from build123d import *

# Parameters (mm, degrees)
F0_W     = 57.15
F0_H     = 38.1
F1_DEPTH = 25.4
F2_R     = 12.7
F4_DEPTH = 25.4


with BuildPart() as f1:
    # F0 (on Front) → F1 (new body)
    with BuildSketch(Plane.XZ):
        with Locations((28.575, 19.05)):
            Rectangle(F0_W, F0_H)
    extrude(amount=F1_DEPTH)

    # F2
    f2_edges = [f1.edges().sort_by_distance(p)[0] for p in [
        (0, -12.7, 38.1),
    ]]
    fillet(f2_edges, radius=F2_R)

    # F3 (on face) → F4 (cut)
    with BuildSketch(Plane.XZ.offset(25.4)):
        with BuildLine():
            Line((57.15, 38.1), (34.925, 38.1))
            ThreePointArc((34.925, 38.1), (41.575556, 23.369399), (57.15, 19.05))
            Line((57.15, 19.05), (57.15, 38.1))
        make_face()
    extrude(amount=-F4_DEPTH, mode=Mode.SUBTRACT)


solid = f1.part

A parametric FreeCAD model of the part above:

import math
import FreeCAD as App
import Part
import Sketcher
Q = App.Units.Quantity


def edges_at(feature, points):
    """Names of the edges that pass closest to the given points."""
    edges = feature.Shape.Edges
    near = lambda p: min(range(len(edges)), key=lambda i: edges[i].distToShape(Part.Vertex(*p))[0])
    return sorted({f"Edge{near(p) + 1}" for p in points})

doc = App.newDocument("Part")
params = doc.addObject("Spreadsheet::Sheet", "Params")
for row, (alias, value) in enumerate([
    ("sketch1_height", "1.5 in"),
    ("sketch1_width", "2.25 in"),
    ("pad1_length", "1 in"),
    ("fillet_radius", "0.5 in"),
    ("sketch2_radius", "0.75 in"),
    ("sketch2_height", "0.75 in"),
    ("sketch2_width", "0.875 in"),
    ("pocket1_length", "1 in"),
], start=1):
    params.set(f"A{row}", alias)
    params.set(f"B{row}", "=" + value)
    params.setAlias(f"B{row}", alias)

body = doc.addObject("PartDesign::Body", "Body")

# Sketch on XZ plane
sketch1 = body.newObject("Sketcher::SketchObject", "Sketch")
sketch1.AttachmentSupport = (doc.getObject("XZ_Plane"), [""])
sketch1.MapMode = "FlatFace"
sketch1.addGeometry([
    Part.LineSegment(App.Vector(0, 38.1, 0), App.Vector(0, 0, 0)),
    Part.LineSegment(App.Vector(0, 0, 0), App.Vector(57.15, 0, 0)),
    Part.LineSegment(App.Vector(57.15, 0, 0), App.Vector(57.15, 38.1, 0)),
    Part.LineSegment(App.Vector(57.15, 38.1, 0), App.Vector(0, 38.1, 0)),
], False)
sketch1.addConstraint([
    Sketcher.Constraint("Coincident", 0, 2, 1, 1),
    Sketcher.Constraint("Coincident", 1, 2, 2, 1),
    Sketcher.Constraint("Coincident", 2, 2, 3, 1),
    Sketcher.Constraint("Coincident", 3, 2, 0, 1),
    Sketcher.Constraint("Vertical", 0),
    Sketcher.Constraint("Horizontal", 1),
    Sketcher.Constraint("Vertical", 2),
    Sketcher.Constraint("Horizontal", 3),
    Sketcher.Constraint("Coincident", 0, 2, -1, 1),
    Sketcher.Constraint("DistanceY", 0, 2, 0, 1, Q("1.5 in")),
    Sketcher.Constraint("DistanceX", 1, 1, 1, 2, Q("2.25 in")),
])
sketch1.setExpression("Constraints[9]", "Params.sketch1_height")
sketch1.setExpression("Constraints[10]", "Params.sketch1_width")
pad1 = body.newObject("PartDesign::Pad", "Pad")
pad1.Profile = sketch1
pad1.setExpression("Length", "Params.pad1_length")
doc.recompute()

fillet = body.newObject("PartDesign::Fillet", "Fillet")
fillet.Base = (pad1, edges_at(pad1, [(0, -12.7, 38.1)]))
fillet.setExpression("Radius", "Params.fillet_radius")

# Sketch on XZ plane
sketch2 = body.newObject("Sketcher::SketchObject", "Sketch001")
sketch2.AttachmentSupport = (doc.getObject("XZ_Plane"), [""])
sketch2.MapMode = "FlatFace"
sketch2.AttachmentOffset = App.Placement(App.Vector(0, 0, 1 * 25.4), App.Rotation())
sketch2.addGeometry([
    Part.LineSegment(App.Vector(57.15, 38.1, 0), App.Vector(34.925, 38.1, 0)),
    Part.ArcOfCircle(Part.Circle(App.Vector(53.973131, 37.833237, 0), App.Vector(0, 0, 1), 19.049999), math.radians(179.197642), math.radians(279.599769)),
    Part.LineSegment(App.Vector(57.15, 19.05, 0), App.Vector(57.15, 38.1, 0)),
], False)
sketch2.addConstraint([
    Sketcher.Constraint("Coincident", 0, 2, 1, 1),
    Sketcher.Constraint("Coincident", 1, 2, 2, 1),
    Sketcher.Constraint("Coincident", 2, 2, 0, 1),
    Sketcher.Constraint("Horizontal", 0),
    Sketcher.Constraint("Vertical", 2),
    Sketcher.Constraint("Radius", 1, Q("0.75 in")),
    Sketcher.Constraint("DistanceY", 2, 1, 2, 2, Q("0.75 in")),
    Sketcher.Constraint("DistanceY", -1, 1, 0, 2, Q("1.5 in")),
    Sketcher.Constraint("DistanceX", 0, 2, 0, 1, Q("0.875 in")),
    Sketcher.Constraint("DistanceX", -1, 1, 1, 2, Q("2.25 in")),
])
sketch2.setExpression("Constraints[5]", "Params.sketch2_radius")
sketch2.setExpression("Constraints[6]", "Params.sketch2_height")
sketch2.setExpression("Constraints[8]", "Params.sketch2_width")
pocket1 = body.newObject("PartDesign::Pocket", "Pocket")
pocket1.Profile = sketch2
pocket1.setExpression("Length", "Params.pocket1_length")

doc.recompute()
